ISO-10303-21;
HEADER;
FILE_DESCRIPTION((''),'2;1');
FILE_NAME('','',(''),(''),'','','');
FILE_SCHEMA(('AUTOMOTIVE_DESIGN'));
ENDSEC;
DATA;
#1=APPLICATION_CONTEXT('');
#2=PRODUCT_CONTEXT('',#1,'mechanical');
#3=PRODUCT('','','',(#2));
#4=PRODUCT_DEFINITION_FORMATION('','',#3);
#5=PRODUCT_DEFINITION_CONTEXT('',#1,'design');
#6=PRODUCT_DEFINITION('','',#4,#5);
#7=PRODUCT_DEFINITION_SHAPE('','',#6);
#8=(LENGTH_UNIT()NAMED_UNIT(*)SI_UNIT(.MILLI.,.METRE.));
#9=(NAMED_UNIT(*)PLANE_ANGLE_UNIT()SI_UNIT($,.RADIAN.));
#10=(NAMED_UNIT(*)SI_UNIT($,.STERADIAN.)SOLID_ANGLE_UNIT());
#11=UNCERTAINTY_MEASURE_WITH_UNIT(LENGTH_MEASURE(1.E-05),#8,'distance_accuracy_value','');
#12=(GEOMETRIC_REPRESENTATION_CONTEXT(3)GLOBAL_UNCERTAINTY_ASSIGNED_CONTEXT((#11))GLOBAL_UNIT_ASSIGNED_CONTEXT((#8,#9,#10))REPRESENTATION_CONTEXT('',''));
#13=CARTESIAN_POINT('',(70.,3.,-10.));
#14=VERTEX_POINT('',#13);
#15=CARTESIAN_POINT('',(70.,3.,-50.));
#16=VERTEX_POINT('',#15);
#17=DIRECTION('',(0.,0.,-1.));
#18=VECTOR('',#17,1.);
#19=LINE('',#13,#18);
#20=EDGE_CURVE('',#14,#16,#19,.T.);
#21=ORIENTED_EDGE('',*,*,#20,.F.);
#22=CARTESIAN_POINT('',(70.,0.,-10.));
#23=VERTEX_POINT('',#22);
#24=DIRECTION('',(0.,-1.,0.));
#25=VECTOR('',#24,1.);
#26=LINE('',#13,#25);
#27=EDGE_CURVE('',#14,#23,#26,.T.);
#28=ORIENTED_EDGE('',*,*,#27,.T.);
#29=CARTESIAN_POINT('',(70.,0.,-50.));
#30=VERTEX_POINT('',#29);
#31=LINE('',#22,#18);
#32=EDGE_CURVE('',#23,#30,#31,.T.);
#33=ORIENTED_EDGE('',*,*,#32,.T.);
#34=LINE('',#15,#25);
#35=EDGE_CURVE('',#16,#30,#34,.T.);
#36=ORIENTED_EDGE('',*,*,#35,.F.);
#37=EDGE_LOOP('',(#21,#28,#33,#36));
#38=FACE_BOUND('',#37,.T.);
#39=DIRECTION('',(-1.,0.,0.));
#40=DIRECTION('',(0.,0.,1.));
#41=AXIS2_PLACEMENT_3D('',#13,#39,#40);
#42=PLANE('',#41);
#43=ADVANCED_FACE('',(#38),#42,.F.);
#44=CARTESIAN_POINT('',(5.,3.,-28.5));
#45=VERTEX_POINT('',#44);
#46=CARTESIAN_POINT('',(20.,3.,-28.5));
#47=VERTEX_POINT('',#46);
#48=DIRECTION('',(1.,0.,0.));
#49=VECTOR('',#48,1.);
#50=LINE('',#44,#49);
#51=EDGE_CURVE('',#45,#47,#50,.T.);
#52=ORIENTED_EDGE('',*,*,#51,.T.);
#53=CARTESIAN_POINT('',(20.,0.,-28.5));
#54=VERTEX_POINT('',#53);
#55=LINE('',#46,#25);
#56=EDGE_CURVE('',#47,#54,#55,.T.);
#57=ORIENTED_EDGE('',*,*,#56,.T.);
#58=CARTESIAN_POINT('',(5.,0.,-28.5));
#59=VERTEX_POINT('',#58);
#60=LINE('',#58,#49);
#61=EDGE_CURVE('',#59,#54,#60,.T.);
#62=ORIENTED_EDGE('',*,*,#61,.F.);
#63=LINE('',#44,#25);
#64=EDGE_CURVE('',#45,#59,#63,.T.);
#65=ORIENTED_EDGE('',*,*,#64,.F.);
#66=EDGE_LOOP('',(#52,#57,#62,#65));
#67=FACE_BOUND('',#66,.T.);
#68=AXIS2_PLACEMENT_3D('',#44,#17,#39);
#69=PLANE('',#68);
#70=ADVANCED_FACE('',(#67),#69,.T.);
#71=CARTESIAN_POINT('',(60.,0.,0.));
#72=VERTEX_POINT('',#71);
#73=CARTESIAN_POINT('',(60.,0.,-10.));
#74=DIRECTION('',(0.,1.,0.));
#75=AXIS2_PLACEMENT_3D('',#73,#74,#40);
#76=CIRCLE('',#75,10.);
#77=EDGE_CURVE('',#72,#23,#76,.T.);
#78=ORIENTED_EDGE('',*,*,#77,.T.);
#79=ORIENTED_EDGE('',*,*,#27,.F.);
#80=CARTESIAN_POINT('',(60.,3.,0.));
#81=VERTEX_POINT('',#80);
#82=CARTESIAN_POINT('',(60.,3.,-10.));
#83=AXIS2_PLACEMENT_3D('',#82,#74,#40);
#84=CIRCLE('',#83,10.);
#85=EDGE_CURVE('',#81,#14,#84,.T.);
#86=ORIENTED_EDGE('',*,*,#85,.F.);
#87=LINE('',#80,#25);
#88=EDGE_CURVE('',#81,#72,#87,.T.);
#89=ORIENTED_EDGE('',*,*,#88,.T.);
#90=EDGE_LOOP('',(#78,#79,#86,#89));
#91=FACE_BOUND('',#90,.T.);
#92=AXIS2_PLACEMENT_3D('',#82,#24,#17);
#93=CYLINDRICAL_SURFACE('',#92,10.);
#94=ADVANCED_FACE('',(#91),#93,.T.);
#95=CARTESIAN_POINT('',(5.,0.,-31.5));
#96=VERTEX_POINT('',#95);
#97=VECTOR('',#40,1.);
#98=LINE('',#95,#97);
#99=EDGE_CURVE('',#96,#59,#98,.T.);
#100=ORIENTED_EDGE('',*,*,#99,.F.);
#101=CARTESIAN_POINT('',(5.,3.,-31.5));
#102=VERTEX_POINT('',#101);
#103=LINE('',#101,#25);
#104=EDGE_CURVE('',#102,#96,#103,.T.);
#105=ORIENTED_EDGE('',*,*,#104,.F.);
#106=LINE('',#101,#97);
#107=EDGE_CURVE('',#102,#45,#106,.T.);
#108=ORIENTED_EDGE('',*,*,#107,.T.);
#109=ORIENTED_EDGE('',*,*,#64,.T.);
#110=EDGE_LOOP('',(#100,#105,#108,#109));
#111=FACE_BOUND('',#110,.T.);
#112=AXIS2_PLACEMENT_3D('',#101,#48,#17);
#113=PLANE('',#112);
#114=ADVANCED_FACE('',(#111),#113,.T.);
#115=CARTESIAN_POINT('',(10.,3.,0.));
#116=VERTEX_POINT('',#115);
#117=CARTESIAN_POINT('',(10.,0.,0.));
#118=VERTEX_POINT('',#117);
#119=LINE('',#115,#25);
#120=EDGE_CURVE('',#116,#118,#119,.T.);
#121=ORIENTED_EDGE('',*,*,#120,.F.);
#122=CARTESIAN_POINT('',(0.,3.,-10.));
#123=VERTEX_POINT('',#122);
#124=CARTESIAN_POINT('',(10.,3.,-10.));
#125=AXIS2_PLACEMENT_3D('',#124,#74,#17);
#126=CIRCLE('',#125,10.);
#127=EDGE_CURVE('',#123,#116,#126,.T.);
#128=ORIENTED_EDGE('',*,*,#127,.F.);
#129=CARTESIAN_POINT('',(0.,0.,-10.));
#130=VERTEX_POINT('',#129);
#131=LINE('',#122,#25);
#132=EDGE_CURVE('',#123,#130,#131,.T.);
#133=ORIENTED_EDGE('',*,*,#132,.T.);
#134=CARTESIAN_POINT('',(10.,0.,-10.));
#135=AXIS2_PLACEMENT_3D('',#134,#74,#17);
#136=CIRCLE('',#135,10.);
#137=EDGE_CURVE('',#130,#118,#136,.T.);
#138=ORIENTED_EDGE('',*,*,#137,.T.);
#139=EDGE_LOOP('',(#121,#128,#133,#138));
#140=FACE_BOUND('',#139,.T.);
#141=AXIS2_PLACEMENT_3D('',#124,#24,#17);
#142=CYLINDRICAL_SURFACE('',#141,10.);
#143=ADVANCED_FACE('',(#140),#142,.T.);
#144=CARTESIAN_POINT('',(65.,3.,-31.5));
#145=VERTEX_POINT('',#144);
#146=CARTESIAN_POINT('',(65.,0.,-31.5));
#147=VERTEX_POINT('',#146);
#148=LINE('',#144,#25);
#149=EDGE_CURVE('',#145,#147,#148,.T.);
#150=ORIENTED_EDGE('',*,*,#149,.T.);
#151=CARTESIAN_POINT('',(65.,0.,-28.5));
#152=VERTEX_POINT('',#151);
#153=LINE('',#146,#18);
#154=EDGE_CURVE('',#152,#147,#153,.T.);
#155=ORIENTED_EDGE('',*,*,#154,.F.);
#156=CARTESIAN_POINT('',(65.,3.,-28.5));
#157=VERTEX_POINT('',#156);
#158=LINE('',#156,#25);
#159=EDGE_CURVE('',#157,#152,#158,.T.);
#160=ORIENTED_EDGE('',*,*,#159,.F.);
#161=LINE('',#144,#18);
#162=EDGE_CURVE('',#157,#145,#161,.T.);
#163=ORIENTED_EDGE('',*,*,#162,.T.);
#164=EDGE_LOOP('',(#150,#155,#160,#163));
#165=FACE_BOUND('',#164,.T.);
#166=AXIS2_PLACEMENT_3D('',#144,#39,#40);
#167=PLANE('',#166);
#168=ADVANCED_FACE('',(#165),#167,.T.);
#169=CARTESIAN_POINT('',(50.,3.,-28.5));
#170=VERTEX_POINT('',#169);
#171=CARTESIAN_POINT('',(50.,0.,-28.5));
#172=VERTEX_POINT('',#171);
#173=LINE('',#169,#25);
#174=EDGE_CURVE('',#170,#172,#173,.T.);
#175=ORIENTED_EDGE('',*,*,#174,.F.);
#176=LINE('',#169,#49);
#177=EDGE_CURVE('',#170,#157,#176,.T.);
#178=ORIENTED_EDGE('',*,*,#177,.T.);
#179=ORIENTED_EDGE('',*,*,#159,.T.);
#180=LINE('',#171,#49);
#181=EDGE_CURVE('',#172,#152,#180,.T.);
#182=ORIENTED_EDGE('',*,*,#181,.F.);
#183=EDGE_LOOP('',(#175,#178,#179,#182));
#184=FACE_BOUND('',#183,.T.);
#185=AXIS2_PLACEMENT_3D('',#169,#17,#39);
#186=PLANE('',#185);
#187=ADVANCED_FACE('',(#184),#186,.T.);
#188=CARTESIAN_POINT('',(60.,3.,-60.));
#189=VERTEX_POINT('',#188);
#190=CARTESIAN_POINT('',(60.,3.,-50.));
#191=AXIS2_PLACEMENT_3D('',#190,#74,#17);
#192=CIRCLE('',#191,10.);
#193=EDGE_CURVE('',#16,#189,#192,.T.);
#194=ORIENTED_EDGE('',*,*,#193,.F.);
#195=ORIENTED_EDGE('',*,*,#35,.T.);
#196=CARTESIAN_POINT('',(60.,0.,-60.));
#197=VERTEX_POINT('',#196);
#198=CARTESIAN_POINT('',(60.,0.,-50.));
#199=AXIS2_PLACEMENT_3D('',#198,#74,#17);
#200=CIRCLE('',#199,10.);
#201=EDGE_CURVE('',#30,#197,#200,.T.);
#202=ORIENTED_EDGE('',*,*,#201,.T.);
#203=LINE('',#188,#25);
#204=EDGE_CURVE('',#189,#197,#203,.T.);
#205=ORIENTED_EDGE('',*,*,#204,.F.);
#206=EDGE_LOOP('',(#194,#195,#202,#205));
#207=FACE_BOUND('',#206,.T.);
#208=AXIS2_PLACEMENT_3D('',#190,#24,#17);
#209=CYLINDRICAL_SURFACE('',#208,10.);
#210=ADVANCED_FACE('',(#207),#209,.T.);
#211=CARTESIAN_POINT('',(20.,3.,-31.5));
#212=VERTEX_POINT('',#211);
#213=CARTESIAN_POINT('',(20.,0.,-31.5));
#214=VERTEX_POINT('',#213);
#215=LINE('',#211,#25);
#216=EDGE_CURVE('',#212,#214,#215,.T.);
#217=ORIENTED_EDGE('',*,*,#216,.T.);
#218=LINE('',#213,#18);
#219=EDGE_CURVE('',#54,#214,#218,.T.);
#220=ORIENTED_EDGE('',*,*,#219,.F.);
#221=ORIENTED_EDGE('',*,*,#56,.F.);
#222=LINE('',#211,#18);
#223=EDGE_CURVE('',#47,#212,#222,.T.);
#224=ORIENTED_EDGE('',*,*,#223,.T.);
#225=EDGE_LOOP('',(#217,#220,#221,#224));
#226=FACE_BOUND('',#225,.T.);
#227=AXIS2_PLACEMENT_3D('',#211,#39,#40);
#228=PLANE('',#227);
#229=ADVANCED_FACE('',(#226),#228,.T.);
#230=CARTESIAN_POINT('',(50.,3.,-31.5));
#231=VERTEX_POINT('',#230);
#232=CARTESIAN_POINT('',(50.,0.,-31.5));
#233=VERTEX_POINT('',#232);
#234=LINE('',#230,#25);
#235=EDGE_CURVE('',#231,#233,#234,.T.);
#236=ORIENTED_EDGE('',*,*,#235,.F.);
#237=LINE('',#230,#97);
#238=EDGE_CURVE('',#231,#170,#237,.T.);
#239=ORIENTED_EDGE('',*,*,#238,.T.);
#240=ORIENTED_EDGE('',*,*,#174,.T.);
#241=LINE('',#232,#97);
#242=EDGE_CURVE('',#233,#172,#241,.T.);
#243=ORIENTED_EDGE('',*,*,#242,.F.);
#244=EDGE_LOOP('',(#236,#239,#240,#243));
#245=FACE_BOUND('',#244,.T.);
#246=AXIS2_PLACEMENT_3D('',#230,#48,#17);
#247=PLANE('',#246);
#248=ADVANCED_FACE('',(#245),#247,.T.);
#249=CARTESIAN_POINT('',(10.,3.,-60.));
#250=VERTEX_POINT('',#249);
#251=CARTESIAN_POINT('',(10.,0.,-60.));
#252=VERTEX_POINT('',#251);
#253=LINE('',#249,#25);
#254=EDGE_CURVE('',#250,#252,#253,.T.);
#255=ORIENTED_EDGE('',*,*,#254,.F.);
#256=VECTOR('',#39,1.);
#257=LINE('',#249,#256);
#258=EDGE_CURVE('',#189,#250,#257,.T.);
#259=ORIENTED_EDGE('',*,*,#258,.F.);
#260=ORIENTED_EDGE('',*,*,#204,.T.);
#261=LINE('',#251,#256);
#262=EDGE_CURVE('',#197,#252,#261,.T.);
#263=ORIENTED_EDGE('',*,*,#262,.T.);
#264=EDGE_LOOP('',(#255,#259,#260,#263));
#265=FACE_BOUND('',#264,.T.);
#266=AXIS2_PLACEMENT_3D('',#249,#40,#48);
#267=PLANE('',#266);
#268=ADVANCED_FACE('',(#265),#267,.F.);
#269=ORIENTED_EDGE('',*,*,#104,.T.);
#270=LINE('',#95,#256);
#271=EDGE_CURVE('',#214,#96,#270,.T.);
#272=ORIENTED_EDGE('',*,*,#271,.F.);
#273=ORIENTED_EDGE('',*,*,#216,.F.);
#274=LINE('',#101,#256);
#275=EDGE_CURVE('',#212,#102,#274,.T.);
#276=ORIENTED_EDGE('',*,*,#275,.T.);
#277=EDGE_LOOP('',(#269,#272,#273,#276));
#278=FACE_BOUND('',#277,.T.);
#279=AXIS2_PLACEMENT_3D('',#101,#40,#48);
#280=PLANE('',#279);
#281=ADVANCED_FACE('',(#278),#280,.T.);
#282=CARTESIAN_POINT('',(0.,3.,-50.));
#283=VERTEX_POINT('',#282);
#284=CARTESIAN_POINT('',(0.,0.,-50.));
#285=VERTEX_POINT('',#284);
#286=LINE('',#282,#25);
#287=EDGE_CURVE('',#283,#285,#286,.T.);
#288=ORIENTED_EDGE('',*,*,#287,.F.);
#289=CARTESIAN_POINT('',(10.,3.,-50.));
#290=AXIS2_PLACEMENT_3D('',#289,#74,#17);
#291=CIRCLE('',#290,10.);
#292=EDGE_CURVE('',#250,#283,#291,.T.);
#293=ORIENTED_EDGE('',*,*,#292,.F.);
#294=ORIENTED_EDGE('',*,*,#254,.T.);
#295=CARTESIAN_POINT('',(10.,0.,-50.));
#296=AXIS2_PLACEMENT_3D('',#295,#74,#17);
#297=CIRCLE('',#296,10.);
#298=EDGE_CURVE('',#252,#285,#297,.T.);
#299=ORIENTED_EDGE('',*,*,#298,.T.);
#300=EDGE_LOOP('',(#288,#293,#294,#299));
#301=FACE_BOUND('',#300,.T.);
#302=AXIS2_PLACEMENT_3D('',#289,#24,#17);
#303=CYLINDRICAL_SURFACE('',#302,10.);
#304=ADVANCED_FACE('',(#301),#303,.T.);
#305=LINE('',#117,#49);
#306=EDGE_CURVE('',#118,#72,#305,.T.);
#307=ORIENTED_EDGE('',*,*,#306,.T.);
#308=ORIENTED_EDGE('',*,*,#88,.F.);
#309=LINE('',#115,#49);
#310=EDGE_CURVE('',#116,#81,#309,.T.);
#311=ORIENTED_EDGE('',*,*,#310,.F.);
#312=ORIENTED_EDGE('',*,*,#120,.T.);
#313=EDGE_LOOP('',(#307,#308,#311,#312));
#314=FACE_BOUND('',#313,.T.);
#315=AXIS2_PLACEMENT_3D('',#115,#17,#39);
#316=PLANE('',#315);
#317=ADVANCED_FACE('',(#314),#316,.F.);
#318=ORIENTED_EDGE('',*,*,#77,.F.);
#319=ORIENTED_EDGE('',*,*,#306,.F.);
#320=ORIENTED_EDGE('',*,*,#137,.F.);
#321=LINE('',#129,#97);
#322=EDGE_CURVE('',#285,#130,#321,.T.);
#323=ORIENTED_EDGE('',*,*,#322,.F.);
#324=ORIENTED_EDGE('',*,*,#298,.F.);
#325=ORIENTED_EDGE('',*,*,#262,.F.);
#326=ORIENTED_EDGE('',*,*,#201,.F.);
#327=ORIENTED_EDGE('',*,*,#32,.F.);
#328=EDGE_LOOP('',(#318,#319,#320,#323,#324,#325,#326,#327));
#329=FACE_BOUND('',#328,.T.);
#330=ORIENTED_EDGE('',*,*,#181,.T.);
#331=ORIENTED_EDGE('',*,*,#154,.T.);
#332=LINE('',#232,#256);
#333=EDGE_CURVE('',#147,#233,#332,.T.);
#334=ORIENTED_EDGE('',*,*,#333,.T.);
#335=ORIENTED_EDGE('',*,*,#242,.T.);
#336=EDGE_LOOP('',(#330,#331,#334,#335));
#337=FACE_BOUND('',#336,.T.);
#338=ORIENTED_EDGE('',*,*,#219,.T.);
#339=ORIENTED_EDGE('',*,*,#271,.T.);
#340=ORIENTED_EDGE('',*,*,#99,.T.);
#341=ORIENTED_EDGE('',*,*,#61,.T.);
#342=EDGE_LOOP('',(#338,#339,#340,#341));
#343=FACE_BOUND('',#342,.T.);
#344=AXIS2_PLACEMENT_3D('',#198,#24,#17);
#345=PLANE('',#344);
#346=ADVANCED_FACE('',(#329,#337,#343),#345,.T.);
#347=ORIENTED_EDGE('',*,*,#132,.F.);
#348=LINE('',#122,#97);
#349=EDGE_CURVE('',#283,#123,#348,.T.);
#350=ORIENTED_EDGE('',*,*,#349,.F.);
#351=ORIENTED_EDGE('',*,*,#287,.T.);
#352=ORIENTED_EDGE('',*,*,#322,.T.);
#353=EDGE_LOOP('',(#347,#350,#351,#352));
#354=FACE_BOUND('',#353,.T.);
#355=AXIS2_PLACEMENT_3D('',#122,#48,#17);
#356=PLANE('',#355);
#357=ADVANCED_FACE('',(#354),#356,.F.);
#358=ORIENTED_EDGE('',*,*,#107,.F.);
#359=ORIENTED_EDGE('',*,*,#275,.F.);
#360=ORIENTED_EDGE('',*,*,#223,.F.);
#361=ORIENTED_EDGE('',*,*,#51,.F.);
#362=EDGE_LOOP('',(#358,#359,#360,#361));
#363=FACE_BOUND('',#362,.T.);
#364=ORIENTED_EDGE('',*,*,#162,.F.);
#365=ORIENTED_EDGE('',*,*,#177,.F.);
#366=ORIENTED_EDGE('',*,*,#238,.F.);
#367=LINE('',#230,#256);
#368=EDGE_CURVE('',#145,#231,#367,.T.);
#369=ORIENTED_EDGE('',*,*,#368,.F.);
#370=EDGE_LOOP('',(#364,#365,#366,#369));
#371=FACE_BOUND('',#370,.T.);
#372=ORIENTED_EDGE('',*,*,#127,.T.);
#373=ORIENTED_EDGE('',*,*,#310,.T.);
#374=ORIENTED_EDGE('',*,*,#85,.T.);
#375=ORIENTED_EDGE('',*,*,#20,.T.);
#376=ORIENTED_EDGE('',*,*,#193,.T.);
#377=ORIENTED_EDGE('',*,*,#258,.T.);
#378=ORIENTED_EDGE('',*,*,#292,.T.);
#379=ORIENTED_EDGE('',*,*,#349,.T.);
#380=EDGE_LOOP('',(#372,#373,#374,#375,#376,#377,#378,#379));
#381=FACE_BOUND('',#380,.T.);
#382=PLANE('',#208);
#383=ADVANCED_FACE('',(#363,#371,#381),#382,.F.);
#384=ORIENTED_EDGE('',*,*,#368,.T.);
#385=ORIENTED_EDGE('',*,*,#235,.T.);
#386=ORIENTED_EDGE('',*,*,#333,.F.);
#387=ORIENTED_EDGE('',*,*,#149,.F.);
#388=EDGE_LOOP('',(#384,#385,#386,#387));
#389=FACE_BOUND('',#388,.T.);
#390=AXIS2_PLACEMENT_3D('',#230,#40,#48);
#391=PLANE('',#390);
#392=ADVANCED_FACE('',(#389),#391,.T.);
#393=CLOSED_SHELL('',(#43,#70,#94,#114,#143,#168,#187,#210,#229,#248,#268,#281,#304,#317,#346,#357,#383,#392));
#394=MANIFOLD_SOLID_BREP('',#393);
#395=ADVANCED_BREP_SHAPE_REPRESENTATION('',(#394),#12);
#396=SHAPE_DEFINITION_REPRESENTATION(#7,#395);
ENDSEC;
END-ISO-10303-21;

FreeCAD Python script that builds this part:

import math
import FreeCAD as App
import Part
import Sketcher
from FreeCAD import Vector

doc = App.newDocument("Part")
body = doc.addObject("PartDesign::Body", "Body")

sketch1 = body.newObject("Sketcher::SketchObject", "Sketch")
sketch1.AttachmentSupport = (doc.getObject("XZ_Plane"), [""])
sketch1.MapMode = "FlatFace"
sketch1.addGeometry(Part.LineSegment(Vector(10, 0, 0), Vector(60, 0, 0)), False)
sketch1.addGeometry(Part.ArcOfCircle(Part.Circle(Vector(60, -10, 0), Vector(0, 0, 1), 10), math.radians(0), math.radians(90)), False)
sketch1.addGeometry(Part.LineSegment(Vector(70, -10, 0), Vector(70, -50, 0)), False)
sketch1.addGeometry(Part.ArcOfCircle(Part.Circle(Vector(60, -50, 0), Vector(0, 0, 1), 10), math.radians(-90), math.radians(0)), False)
sketch1.addGeometry(Part.LineSegment(Vector(60, -60, 0), Vector(10, -60, 0)), False)
sketch1.addGeometry(Part.ArcOfCircle(Part.Circle(Vector(10, -50, 0), Vector(0, 0, 1), 10), math.radians(180), math.radians(270)), False)
sketch1.addGeometry(Part.LineSegment(Vector(0, -50, 0), Vector(0, -10, 0)), False)
sketch1.addGeometry(Part.ArcOfCircle(Part.Circle(Vector(10, -10, 0), Vector(0, 0, 1), 10), math.radians(90), math.radians(180)), False)
sketch1.addGeometry(Part.LineSegment(Vector(20, -28.5, 0), Vector(5, -28.5, 0)), False)
sketch1.addGeometry(Part.LineSegment(Vector(5, -28.5, 0), Vector(5, -31.5, 0)), False)
sketch1.addGeometry(Part.LineSegment(Vector(5, -31.5, 0), Vector(20, -31.5, 0)), False)
sketch1.addGeometry(Part.LineSegment(Vector(20, -31.5, 0), Vector(20, -28.5, 0)), False)
sketch1.addGeometry(Part.LineSegment(Vector(65, -28.5, 0), Vector(50, -28.5, 0)), False)
sketch1.addGeometry(Part.LineSegment(Vector(50, -28.5, 0), Vector(50, -31.5, 0)), False)
sketch1.addGeometry(Part.LineSegment(Vector(50, -31.5, 0), Vector(65, -31.5, 0)), False)
sketch1.addGeometry(Part.LineSegment(Vector(65, -31.5, 0), Vector(65, -28.5, 0)), False)
sketch1.addConstraint(Sketcher.Constraint("Tangent", 0, 2, 1, 2))
sketch1.addConstraint(Sketcher.Constraint("Tangent", 1, 1, 2, 1))
sketch1.addConstraint(Sketcher.Constraint("Tangent", 2, 2, 3, 2))
sketch1.addConstraint(Sketcher.Constraint("Tangent", 3, 1, 4, 1))
sketch1.addConstraint(Sketcher.Constraint("Tangent", 4, 2, 5, 2))
sketch1.addConstraint(Sketcher.Constraint("Tangent", 5, 1, 6, 1))
sketch1.addConstraint(Sketcher.Constraint("Tangent", 6, 2, 7, 2))
sketch1.addConstraint(Sketcher.Constraint("Tangent", 7, 1, 0, 1))
sketch1.addConstraint(Sketcher.Constraint("Coincident", 8, 2, 9, 1))
sketch1.addConstraint(Sketcher.Constraint("Coincident", 9, 2, 10, 1))
sketch1.addConstraint(Sketcher.Constraint("Coincident", 10, 2, 11, 1))
sketch1.addConstraint(Sketcher.Constraint("Coincident", 11, 2, 8, 1))
sketch1.addConstraint(Sketcher.Constraint("Coincident", 12, 2, 13, 1))
sketch1.addConstraint(Sketcher.Constraint("Coincident", 13, 2, 14, 1))
sketch1.addConstraint(Sketcher.Constraint("Coincident", 14, 2, 15, 1))
sketch1.addConstraint(Sketcher.Constraint("Coincident", 15, 2, 12, 1))
sketch1.addConstraint(Sketcher.Constraint("Horizontal", 0))
sketch1.addConstraint(Sketcher.Constraint("Vertical", 2))
sketch1.addConstraint(Sketcher.Constraint("Horizontal", 4))
sketch1.addConstraint(Sketcher.Constraint("Vertical", 6))
sketch1.addConstraint(Sketcher.Constraint("Horizontal", 8))
sketch1.addConstraint(Sketcher.Constraint("Vertical", 9))
sketch1.addConstraint(Sketcher.Constraint("Horizontal", 10))
sketch1.addConstraint(Sketcher.Constraint("Vertical", 11))
sketch1.addConstraint(Sketcher.Constraint("Horizontal", 12))
sketch1.addConstraint(Sketcher.Constraint("Vertical", 13))
sketch1.addConstraint(Sketcher.Constraint("Horizontal", 14))
sketch1.addConstraint(Sketcher.Constraint("Vertical", 15))
sketch1.addConstraint(Sketcher.Constraint("Equal", 1, 3))
sketch1.addConstraint(Sketcher.Constraint("Equal", 3, 5))
sketch1.addConstraint(Sketcher.Constraint("Equal", 5, 7))
sketch1.addConstraint(Sketcher.Constraint("PointOnObject", 0, 2, -1))
sketch1.addConstraint(Sketcher.Constraint("PointOnObject", 5, 1, -2))
sketch1.addConstraint(Sketcher.Constraint("Horizontal", 11, 2, 12, 2))
sketch1.addConstraint(Sketcher.Constraint("Horizontal", 10, 2, 13, 2))
sketch1.addConstraint(Sketcher.Constraint("Equal", 10, 12))
sketch1.addConstraint(Sketcher.Constraint("Radius", 1, 10.0))
sketch1.addConstraint(Sketcher.Constraint("DistanceX", 0, 1, 0, 2, 50.0))
sketch1.addConstraint(Sketcher.Constraint("DistanceX", 8, 2, 8, 1, 15.0))
sketch1.addConstraint(Sketcher.Constraint("DistanceY", 2, 2, 2, 1, 40.0))
sketch1.addConstraint(Sketcher.Constraint("DistanceY", 9, 2, 9, 1, 3.0))
sketch1.addConstraint(Sketcher.Constraint("DistanceX", -1, 1, 8, 2, 5.0))
sketch1.addConstraint(Sketcher.Constraint("DistanceX", -1, 1, 12, 2, 50.0))
sketch1.addConstraint(Sketcher.Constraint("DistanceY", 8, 2, -1, 1, 28.5))
pad1 = body.newObject("PartDesign::Pad", "Pad")
pad1.Profile = sketch1
pad1.Length = 3
pad1.Reversed = True

doc.recompute()
